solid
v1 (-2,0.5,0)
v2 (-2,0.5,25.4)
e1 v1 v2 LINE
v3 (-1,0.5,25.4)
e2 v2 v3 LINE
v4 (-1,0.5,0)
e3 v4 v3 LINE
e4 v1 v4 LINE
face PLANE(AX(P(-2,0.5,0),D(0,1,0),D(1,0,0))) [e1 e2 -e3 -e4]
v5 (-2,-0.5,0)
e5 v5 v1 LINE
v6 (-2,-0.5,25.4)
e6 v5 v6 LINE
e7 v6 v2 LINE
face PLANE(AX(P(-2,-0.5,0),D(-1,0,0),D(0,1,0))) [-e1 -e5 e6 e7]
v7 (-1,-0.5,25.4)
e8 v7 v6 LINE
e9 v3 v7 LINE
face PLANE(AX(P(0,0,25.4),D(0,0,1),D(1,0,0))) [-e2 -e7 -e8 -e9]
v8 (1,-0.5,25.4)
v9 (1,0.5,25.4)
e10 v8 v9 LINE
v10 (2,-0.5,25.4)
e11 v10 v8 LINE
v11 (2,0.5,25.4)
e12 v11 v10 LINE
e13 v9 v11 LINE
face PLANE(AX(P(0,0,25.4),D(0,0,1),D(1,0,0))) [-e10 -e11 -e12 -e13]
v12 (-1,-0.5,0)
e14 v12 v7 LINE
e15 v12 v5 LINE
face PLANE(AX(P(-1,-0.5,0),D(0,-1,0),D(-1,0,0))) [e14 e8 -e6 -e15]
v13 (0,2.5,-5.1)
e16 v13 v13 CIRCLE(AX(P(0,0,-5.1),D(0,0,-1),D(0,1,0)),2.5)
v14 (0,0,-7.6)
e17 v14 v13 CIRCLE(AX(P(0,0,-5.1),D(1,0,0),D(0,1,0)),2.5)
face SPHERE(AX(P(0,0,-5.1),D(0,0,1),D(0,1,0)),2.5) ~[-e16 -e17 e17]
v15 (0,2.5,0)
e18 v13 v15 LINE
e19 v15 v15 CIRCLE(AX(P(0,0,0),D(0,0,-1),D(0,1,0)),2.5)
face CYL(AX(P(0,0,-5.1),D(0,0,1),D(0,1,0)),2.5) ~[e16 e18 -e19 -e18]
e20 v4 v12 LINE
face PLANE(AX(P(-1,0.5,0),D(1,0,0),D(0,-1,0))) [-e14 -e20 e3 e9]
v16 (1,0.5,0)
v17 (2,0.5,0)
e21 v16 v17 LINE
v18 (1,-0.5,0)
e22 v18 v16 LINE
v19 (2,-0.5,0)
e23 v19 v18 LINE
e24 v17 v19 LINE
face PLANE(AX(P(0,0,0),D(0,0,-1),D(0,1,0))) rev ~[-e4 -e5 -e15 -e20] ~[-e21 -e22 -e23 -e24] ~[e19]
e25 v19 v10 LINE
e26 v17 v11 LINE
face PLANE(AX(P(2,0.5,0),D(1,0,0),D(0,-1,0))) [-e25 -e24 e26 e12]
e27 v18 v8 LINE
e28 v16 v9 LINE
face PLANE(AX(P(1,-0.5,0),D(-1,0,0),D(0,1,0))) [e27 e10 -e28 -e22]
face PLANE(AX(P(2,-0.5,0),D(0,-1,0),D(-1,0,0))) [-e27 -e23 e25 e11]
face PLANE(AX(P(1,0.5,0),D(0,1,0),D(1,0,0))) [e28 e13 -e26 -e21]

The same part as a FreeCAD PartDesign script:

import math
import FreeCAD as App
import Part
import Sketcher

V = App.Vector
Q = App.Units.Quantity


def add_polygon(sketch, points):
    """Adds a closed chain of lines whose ends are joined by coincident constraints."""
    first, n = sketch.GeometryCount, len(points)
    for a, b in zip(points, points[1:] + points[:1]):
        sketch.addGeometry(Part.LineSegment(App.Vector(*a, 0), App.Vector(*b, 0)), False)
    for i in range(n):
        sketch.addConstraint(Sketcher.Constraint("Coincident", first + i, 2, first + (i + 1) % n, 1))

doc = App.newDocument("Part")
body = doc.addObject("PartDesign::Body", "Body")

sketch1 = body.newObject("Sketcher::SketchObject", "Sketch")
sketch1.AttachmentSupport = (doc.getObject("YZ_Plane"), [""])
sketch1.MapMode = "FlatFace"
sketch1.addGeometry(Part.LineSegment(V(2.5, -5.1, 0), V(2.5, 0, 0)), False)
sketch1.addGeometry(Part.LineSegment(V(2.5, 0, 0), V(0, 0, 0)), False)
sketch1.addGeometry(Part.LineSegment(V(0, 0, 0), V(0, -7.6, 0)), False)
sketch1.addGeometry(Part.ArcOfCircle(Part.Circle(V(0, -5.1, 0), V(0, 0, 1), 2.5), math.radians(-90), math.radians(0)), False)
sketch1.addConstraint(Sketcher.Constraint("Coincident", 0, 2, 1, 1))
sketch1.addConstraint(Sketcher.Constraint("Coincident", 1, 2, 2, 1))
sketch1.addConstraint(Sketcher.Constraint("Coincident", 2, 2, 3, 1))
sketch1.addConstraint(Sketcher.Constraint("Tangent", 3, 2, 0, 1))
sketch1.addConstraint(Sketcher.Constraint("Vertical", 0))
sketch1.addConstraint(Sketcher.Constraint("Horizontal", 1))
sketch1.addConstraint(Sketcher.Constraint("Vertical", 2))
sketch1.addConstraint(Sketcher.Constraint("Coincident", 1, 2, -1, 1))
sketch1.addConstraint(Sketcher.Constraint("PointOnObject", 3, 3, -2))
sketch1.addConstraint(Sketcher.Constraint("Radius", 3, Q("2.5 mm")))
sketch1.addConstraint(Sketcher.Constraint("DistanceY", 0, 1, 0, 2, Q("5.1 mm")))
revolution = body.newObject("PartDesign::Revolution", "Revolution")
revolution.Profile = sketch1
revolution.ReferenceAxis = (sketch1, ["V_Axis"])
revolution.Angle = 360

sketch2 = body.newObject("Sketcher::SketchObject", "Sketch001")
sketch2.AttachmentSupport = (doc.getObject("XY_Plane"), [""])
sketch2.MapMode = "FlatFace"
add_polygon(sketch2, [(-2, -0.5), (-1, -0.5), (-1, 0.5), (-2, 0.5)])
add_polygon(sketch2, [(1, -0.5), (2, -0.5), (2, 0.5), (1, 0.5)])
sketch2.addConstraint(Sketcher.Constraint("Horizontal", 0))
sketch2.addConstraint(Sketcher.Constraint("Vertical", 1))
sketch2.addConstraint(Sketcher.Constraint("Horizontal", 2))
sketch2.addConstraint(Sketcher.Constraint("Vertical", 3))
sketch2.addConstraint(Sketcher.Constraint("Horizontal", 4))
sketch2.addConstraint(Sketcher.Constraint("Vertical", 5))
sketch2.addConstraint(Sketcher.Constraint("Horizontal", 6))
sketch2.addConstraint(Sketcher.Constraint("Vertical", 7))
sketch2.addConstraint(Sketcher.Constraint("Symmetric", 2, 2, 4, 2, -1, 1))
sketch2.addConstraint(Sketcher.Constraint("Symmetric", 0, 2, 6, 2, -1, 1))
sketch2.addConstraint(Sketcher.Constraint("Horizontal", 3, 2, 4, 2))
sketch2.addConstraint(Sketcher.Constraint("Equal", 6, 1))
sketch2.addConstraint(Sketcher.Constraint("DistanceX", 0, 1, 0, 2, Q("1 mm")))
sketch2.addConstraint(Sketcher.Constraint("DistanceX", 0, 2, -1, 1, Q("1 mm")))
pad1 = body.newObject("PartDesign::Pad", "Pad")
pad1.Profile = sketch2
pad1.Length = 25.4

doc.recompute()
